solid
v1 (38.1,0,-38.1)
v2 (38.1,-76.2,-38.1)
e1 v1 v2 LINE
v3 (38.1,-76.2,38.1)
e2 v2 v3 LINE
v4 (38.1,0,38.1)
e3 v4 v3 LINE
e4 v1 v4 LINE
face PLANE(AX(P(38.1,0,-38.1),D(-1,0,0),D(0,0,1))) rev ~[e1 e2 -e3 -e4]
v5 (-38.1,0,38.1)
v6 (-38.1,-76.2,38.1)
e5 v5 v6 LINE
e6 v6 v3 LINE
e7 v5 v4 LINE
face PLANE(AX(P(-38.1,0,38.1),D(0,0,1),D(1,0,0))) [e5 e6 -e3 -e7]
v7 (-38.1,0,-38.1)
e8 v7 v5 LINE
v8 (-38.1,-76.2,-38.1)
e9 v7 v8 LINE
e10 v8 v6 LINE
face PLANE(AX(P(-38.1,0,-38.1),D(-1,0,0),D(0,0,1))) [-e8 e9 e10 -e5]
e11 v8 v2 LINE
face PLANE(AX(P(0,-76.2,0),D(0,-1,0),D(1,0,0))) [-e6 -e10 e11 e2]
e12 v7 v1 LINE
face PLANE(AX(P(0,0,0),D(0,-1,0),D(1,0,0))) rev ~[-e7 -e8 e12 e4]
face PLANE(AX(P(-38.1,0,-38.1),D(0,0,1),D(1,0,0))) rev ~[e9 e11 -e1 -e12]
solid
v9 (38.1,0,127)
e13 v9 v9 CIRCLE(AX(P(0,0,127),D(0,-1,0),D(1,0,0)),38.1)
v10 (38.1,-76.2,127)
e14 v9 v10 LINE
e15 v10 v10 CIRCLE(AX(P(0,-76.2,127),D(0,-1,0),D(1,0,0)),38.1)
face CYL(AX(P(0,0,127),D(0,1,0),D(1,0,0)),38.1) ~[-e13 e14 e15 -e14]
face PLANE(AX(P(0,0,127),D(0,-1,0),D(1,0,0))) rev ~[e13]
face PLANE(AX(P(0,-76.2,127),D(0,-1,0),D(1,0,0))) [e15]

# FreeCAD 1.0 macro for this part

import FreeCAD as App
import Part
import Sketcher
from FreeCAD import Vector
Q = App.Units.Quantity

doc = App.newDocument("Part")
body = doc.addObject("PartDesign::Body", "Body")
body.AllowCompound = True

# Sketch on XZ plane
sketch1 = body.newObject("Sketcher::SketchObject", "Sketch")
sketch1.AttachmentSupport = (doc.getObject("XZ_Plane"), [""])
sketch1.MapMode = "FlatFace"
sketch1.addGeometry([
    Part.LineSegment(Vector(-38, 38, 0), Vector(-38, -38, 0)),  # 0
    Part.LineSegment(Vector(-38, -38, 0), Vector(38, -38, 0)),  # 1
    Part.LineSegment(Vector(38, -38, 0), Vector(38, 38, 0)),  # 2
    Part.LineSegment(Vector(38, 38, 0), Vector(-38, 38, 0)),  # 3
    Part.Circle(Vector(0, 127, 0), Vector(0, 0, 1), 38),  # 4
], False)
sketch1.addConstraint([
    Sketcher.Constraint("Coincident", 0, 2, 1, 1),
    Sketcher.Constraint("Coincident", 1, 2, 2, 1),
    Sketcher.Constraint("Coincident", 2, 2, 3, 1),
    Sketcher.Constraint("Coincident", 3, 2, 0, 1),
    Sketcher.Constraint("Vertical", 0),
    Sketcher.Constraint("Horizontal", 1),
    Sketcher.Constraint("Vertical", 2),
    Sketcher.Constraint("Horizontal", 3),
    Sketcher.Constraint("Symmetric", 0, 2, 2, 2, -1, 1),
    Sketcher.Constraint("PointOnObject", 4, 3, -2),
    Sketcher.Constraint("Equal", 3, 0),
    Sketcher.Constraint("Diameter", 4, Q("3 in")),
    Sketcher.Constraint("DistanceX", 1, 1, 1, 2, Q("3 in")),
    Sketcher.Constraint("DistanceY", -1, 1, 4, 3, Q("5 in")),
])
pad1 = body.newObject("PartDesign::Pad", "Pad")
pad1.Profile = sketch1
pad1.Length = Q("3 in")

doc.recompute()
